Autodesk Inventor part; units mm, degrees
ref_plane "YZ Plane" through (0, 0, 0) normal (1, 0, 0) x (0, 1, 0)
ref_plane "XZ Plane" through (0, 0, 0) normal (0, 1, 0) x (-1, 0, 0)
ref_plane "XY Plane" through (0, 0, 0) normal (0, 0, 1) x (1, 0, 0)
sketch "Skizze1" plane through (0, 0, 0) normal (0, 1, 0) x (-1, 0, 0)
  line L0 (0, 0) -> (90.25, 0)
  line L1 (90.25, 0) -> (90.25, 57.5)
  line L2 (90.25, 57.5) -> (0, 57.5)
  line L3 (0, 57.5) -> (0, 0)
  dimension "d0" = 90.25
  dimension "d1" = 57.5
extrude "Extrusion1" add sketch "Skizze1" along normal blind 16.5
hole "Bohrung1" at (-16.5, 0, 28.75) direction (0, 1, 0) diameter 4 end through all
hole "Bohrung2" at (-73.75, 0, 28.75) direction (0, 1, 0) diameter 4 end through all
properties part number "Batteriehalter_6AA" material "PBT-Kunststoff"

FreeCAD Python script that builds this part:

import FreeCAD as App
import Part
import Sketcher


def add_polygon(sketch, points):
    """Adds a closed chain of lines whose ends are joined by coincident constraints."""
    first, n = sketch.GeometryCount, len(points)
    for a, b in zip(points, points[1:] + points[:1]):
        sketch.addGeometry(Part.LineSegment(App.Vector(*a, 0), App.Vector(*b, 0)), False)
    for i in range(n):
        sketch.addConstraint(Sketcher.Constraint("Coincident", first + i, 2, first + (i + 1) % n, 1))

doc = App.newDocument("Part")
body = doc.addObject("PartDesign::Body", "Body")

# Sketch on XZ plane
sketch1 = body.newObject("Sketcher::SketchObject", "Sketch")
sketch1.AttachmentSupport = (doc.getObject("XZ_Plane"), [""])
sketch1.MapMode = "FlatFace"
add_polygon(sketch1, [(0, 58), (0, 0), (-90, 0), (-90, 58)])  # lines 0-3
sketch1.addConstraint([
    Sketcher.Constraint("Vertical", 0),
    Sketcher.Constraint("Horizontal", 1),
    Sketcher.Constraint("Vertical", 2),
    Sketcher.Constraint("Horizontal", 3),
    Sketcher.Constraint("Coincident", 0, 2, -1, 1),
    Sketcher.Constraint("DistanceY", 0, 2, 0, 1, 57.5),
    Sketcher.Constraint("DistanceX", 1, 2, 1, 1, 90.25),
])
pad1 = body.newObject("PartDesign::Pad", "Pad")
pad1.Profile = sketch1
pad1.Length = 16.5
pad1.Reversed = True

# Sketch on XZ plane
sketch2 = body.newObject("Sketcher::SketchObject", "Sketch001")
sketch2.AttachmentSupport = (doc.getObject("XZ_Plane"), [""])
sketch2.MapMode = "FlatFace"
sketch2.addGeometry(Part.Circle(App.Vector(-16.5, 28.8, 0), App.Vector(0, 0, 1), 2), False)
sketch2.addConstraint([
    Sketcher.Constraint("Diameter", 0, 4.0),
    Sketcher.Constraint("DistanceX", 0, 3, -1, 1, 16.5),
    Sketcher.Constraint("DistanceY", -1, 1, 0, 3, 28.75),
])
doc.recompute()
hole = body.newObject("PartDesign::Hole", "Hole")
hole.Profile = sketch2
hole.ThreadType = "None"
hole.Diameter = 4
hole.DepthType = "ThroughAll"

# Sketch on XZ plane
sketch3 = body.newObject("Sketcher::SketchObject", "Sketch002")
sketch3.AttachmentSupport = (doc.getObject("XZ_Plane"), [""])
sketch3.MapMode = "FlatFace"
sketch3.addGeometry(Part.Circle(App.Vector(-73.8, 28.8, 0), App.Vector(0, 0, 1), 2), False)
sketch3.addConstraint([
    Sketcher.Constraint("Diameter", 0, 4.0),
    Sketcher.Constraint("DistanceX", 0, 3, -1, 1, 73.75),
    Sketcher.Constraint("DistanceY", -1, 1, 0, 3, 28.75),
])
doc.recompute()
hole2 = body.newObject("PartDesign::Hole", "Hole001")
hole2.Profile = sketch3
hole2.ThreadType = "None"
hole2.Diameter = 4
hole2.DepthType = "ThroughAll"

doc.recompute()
